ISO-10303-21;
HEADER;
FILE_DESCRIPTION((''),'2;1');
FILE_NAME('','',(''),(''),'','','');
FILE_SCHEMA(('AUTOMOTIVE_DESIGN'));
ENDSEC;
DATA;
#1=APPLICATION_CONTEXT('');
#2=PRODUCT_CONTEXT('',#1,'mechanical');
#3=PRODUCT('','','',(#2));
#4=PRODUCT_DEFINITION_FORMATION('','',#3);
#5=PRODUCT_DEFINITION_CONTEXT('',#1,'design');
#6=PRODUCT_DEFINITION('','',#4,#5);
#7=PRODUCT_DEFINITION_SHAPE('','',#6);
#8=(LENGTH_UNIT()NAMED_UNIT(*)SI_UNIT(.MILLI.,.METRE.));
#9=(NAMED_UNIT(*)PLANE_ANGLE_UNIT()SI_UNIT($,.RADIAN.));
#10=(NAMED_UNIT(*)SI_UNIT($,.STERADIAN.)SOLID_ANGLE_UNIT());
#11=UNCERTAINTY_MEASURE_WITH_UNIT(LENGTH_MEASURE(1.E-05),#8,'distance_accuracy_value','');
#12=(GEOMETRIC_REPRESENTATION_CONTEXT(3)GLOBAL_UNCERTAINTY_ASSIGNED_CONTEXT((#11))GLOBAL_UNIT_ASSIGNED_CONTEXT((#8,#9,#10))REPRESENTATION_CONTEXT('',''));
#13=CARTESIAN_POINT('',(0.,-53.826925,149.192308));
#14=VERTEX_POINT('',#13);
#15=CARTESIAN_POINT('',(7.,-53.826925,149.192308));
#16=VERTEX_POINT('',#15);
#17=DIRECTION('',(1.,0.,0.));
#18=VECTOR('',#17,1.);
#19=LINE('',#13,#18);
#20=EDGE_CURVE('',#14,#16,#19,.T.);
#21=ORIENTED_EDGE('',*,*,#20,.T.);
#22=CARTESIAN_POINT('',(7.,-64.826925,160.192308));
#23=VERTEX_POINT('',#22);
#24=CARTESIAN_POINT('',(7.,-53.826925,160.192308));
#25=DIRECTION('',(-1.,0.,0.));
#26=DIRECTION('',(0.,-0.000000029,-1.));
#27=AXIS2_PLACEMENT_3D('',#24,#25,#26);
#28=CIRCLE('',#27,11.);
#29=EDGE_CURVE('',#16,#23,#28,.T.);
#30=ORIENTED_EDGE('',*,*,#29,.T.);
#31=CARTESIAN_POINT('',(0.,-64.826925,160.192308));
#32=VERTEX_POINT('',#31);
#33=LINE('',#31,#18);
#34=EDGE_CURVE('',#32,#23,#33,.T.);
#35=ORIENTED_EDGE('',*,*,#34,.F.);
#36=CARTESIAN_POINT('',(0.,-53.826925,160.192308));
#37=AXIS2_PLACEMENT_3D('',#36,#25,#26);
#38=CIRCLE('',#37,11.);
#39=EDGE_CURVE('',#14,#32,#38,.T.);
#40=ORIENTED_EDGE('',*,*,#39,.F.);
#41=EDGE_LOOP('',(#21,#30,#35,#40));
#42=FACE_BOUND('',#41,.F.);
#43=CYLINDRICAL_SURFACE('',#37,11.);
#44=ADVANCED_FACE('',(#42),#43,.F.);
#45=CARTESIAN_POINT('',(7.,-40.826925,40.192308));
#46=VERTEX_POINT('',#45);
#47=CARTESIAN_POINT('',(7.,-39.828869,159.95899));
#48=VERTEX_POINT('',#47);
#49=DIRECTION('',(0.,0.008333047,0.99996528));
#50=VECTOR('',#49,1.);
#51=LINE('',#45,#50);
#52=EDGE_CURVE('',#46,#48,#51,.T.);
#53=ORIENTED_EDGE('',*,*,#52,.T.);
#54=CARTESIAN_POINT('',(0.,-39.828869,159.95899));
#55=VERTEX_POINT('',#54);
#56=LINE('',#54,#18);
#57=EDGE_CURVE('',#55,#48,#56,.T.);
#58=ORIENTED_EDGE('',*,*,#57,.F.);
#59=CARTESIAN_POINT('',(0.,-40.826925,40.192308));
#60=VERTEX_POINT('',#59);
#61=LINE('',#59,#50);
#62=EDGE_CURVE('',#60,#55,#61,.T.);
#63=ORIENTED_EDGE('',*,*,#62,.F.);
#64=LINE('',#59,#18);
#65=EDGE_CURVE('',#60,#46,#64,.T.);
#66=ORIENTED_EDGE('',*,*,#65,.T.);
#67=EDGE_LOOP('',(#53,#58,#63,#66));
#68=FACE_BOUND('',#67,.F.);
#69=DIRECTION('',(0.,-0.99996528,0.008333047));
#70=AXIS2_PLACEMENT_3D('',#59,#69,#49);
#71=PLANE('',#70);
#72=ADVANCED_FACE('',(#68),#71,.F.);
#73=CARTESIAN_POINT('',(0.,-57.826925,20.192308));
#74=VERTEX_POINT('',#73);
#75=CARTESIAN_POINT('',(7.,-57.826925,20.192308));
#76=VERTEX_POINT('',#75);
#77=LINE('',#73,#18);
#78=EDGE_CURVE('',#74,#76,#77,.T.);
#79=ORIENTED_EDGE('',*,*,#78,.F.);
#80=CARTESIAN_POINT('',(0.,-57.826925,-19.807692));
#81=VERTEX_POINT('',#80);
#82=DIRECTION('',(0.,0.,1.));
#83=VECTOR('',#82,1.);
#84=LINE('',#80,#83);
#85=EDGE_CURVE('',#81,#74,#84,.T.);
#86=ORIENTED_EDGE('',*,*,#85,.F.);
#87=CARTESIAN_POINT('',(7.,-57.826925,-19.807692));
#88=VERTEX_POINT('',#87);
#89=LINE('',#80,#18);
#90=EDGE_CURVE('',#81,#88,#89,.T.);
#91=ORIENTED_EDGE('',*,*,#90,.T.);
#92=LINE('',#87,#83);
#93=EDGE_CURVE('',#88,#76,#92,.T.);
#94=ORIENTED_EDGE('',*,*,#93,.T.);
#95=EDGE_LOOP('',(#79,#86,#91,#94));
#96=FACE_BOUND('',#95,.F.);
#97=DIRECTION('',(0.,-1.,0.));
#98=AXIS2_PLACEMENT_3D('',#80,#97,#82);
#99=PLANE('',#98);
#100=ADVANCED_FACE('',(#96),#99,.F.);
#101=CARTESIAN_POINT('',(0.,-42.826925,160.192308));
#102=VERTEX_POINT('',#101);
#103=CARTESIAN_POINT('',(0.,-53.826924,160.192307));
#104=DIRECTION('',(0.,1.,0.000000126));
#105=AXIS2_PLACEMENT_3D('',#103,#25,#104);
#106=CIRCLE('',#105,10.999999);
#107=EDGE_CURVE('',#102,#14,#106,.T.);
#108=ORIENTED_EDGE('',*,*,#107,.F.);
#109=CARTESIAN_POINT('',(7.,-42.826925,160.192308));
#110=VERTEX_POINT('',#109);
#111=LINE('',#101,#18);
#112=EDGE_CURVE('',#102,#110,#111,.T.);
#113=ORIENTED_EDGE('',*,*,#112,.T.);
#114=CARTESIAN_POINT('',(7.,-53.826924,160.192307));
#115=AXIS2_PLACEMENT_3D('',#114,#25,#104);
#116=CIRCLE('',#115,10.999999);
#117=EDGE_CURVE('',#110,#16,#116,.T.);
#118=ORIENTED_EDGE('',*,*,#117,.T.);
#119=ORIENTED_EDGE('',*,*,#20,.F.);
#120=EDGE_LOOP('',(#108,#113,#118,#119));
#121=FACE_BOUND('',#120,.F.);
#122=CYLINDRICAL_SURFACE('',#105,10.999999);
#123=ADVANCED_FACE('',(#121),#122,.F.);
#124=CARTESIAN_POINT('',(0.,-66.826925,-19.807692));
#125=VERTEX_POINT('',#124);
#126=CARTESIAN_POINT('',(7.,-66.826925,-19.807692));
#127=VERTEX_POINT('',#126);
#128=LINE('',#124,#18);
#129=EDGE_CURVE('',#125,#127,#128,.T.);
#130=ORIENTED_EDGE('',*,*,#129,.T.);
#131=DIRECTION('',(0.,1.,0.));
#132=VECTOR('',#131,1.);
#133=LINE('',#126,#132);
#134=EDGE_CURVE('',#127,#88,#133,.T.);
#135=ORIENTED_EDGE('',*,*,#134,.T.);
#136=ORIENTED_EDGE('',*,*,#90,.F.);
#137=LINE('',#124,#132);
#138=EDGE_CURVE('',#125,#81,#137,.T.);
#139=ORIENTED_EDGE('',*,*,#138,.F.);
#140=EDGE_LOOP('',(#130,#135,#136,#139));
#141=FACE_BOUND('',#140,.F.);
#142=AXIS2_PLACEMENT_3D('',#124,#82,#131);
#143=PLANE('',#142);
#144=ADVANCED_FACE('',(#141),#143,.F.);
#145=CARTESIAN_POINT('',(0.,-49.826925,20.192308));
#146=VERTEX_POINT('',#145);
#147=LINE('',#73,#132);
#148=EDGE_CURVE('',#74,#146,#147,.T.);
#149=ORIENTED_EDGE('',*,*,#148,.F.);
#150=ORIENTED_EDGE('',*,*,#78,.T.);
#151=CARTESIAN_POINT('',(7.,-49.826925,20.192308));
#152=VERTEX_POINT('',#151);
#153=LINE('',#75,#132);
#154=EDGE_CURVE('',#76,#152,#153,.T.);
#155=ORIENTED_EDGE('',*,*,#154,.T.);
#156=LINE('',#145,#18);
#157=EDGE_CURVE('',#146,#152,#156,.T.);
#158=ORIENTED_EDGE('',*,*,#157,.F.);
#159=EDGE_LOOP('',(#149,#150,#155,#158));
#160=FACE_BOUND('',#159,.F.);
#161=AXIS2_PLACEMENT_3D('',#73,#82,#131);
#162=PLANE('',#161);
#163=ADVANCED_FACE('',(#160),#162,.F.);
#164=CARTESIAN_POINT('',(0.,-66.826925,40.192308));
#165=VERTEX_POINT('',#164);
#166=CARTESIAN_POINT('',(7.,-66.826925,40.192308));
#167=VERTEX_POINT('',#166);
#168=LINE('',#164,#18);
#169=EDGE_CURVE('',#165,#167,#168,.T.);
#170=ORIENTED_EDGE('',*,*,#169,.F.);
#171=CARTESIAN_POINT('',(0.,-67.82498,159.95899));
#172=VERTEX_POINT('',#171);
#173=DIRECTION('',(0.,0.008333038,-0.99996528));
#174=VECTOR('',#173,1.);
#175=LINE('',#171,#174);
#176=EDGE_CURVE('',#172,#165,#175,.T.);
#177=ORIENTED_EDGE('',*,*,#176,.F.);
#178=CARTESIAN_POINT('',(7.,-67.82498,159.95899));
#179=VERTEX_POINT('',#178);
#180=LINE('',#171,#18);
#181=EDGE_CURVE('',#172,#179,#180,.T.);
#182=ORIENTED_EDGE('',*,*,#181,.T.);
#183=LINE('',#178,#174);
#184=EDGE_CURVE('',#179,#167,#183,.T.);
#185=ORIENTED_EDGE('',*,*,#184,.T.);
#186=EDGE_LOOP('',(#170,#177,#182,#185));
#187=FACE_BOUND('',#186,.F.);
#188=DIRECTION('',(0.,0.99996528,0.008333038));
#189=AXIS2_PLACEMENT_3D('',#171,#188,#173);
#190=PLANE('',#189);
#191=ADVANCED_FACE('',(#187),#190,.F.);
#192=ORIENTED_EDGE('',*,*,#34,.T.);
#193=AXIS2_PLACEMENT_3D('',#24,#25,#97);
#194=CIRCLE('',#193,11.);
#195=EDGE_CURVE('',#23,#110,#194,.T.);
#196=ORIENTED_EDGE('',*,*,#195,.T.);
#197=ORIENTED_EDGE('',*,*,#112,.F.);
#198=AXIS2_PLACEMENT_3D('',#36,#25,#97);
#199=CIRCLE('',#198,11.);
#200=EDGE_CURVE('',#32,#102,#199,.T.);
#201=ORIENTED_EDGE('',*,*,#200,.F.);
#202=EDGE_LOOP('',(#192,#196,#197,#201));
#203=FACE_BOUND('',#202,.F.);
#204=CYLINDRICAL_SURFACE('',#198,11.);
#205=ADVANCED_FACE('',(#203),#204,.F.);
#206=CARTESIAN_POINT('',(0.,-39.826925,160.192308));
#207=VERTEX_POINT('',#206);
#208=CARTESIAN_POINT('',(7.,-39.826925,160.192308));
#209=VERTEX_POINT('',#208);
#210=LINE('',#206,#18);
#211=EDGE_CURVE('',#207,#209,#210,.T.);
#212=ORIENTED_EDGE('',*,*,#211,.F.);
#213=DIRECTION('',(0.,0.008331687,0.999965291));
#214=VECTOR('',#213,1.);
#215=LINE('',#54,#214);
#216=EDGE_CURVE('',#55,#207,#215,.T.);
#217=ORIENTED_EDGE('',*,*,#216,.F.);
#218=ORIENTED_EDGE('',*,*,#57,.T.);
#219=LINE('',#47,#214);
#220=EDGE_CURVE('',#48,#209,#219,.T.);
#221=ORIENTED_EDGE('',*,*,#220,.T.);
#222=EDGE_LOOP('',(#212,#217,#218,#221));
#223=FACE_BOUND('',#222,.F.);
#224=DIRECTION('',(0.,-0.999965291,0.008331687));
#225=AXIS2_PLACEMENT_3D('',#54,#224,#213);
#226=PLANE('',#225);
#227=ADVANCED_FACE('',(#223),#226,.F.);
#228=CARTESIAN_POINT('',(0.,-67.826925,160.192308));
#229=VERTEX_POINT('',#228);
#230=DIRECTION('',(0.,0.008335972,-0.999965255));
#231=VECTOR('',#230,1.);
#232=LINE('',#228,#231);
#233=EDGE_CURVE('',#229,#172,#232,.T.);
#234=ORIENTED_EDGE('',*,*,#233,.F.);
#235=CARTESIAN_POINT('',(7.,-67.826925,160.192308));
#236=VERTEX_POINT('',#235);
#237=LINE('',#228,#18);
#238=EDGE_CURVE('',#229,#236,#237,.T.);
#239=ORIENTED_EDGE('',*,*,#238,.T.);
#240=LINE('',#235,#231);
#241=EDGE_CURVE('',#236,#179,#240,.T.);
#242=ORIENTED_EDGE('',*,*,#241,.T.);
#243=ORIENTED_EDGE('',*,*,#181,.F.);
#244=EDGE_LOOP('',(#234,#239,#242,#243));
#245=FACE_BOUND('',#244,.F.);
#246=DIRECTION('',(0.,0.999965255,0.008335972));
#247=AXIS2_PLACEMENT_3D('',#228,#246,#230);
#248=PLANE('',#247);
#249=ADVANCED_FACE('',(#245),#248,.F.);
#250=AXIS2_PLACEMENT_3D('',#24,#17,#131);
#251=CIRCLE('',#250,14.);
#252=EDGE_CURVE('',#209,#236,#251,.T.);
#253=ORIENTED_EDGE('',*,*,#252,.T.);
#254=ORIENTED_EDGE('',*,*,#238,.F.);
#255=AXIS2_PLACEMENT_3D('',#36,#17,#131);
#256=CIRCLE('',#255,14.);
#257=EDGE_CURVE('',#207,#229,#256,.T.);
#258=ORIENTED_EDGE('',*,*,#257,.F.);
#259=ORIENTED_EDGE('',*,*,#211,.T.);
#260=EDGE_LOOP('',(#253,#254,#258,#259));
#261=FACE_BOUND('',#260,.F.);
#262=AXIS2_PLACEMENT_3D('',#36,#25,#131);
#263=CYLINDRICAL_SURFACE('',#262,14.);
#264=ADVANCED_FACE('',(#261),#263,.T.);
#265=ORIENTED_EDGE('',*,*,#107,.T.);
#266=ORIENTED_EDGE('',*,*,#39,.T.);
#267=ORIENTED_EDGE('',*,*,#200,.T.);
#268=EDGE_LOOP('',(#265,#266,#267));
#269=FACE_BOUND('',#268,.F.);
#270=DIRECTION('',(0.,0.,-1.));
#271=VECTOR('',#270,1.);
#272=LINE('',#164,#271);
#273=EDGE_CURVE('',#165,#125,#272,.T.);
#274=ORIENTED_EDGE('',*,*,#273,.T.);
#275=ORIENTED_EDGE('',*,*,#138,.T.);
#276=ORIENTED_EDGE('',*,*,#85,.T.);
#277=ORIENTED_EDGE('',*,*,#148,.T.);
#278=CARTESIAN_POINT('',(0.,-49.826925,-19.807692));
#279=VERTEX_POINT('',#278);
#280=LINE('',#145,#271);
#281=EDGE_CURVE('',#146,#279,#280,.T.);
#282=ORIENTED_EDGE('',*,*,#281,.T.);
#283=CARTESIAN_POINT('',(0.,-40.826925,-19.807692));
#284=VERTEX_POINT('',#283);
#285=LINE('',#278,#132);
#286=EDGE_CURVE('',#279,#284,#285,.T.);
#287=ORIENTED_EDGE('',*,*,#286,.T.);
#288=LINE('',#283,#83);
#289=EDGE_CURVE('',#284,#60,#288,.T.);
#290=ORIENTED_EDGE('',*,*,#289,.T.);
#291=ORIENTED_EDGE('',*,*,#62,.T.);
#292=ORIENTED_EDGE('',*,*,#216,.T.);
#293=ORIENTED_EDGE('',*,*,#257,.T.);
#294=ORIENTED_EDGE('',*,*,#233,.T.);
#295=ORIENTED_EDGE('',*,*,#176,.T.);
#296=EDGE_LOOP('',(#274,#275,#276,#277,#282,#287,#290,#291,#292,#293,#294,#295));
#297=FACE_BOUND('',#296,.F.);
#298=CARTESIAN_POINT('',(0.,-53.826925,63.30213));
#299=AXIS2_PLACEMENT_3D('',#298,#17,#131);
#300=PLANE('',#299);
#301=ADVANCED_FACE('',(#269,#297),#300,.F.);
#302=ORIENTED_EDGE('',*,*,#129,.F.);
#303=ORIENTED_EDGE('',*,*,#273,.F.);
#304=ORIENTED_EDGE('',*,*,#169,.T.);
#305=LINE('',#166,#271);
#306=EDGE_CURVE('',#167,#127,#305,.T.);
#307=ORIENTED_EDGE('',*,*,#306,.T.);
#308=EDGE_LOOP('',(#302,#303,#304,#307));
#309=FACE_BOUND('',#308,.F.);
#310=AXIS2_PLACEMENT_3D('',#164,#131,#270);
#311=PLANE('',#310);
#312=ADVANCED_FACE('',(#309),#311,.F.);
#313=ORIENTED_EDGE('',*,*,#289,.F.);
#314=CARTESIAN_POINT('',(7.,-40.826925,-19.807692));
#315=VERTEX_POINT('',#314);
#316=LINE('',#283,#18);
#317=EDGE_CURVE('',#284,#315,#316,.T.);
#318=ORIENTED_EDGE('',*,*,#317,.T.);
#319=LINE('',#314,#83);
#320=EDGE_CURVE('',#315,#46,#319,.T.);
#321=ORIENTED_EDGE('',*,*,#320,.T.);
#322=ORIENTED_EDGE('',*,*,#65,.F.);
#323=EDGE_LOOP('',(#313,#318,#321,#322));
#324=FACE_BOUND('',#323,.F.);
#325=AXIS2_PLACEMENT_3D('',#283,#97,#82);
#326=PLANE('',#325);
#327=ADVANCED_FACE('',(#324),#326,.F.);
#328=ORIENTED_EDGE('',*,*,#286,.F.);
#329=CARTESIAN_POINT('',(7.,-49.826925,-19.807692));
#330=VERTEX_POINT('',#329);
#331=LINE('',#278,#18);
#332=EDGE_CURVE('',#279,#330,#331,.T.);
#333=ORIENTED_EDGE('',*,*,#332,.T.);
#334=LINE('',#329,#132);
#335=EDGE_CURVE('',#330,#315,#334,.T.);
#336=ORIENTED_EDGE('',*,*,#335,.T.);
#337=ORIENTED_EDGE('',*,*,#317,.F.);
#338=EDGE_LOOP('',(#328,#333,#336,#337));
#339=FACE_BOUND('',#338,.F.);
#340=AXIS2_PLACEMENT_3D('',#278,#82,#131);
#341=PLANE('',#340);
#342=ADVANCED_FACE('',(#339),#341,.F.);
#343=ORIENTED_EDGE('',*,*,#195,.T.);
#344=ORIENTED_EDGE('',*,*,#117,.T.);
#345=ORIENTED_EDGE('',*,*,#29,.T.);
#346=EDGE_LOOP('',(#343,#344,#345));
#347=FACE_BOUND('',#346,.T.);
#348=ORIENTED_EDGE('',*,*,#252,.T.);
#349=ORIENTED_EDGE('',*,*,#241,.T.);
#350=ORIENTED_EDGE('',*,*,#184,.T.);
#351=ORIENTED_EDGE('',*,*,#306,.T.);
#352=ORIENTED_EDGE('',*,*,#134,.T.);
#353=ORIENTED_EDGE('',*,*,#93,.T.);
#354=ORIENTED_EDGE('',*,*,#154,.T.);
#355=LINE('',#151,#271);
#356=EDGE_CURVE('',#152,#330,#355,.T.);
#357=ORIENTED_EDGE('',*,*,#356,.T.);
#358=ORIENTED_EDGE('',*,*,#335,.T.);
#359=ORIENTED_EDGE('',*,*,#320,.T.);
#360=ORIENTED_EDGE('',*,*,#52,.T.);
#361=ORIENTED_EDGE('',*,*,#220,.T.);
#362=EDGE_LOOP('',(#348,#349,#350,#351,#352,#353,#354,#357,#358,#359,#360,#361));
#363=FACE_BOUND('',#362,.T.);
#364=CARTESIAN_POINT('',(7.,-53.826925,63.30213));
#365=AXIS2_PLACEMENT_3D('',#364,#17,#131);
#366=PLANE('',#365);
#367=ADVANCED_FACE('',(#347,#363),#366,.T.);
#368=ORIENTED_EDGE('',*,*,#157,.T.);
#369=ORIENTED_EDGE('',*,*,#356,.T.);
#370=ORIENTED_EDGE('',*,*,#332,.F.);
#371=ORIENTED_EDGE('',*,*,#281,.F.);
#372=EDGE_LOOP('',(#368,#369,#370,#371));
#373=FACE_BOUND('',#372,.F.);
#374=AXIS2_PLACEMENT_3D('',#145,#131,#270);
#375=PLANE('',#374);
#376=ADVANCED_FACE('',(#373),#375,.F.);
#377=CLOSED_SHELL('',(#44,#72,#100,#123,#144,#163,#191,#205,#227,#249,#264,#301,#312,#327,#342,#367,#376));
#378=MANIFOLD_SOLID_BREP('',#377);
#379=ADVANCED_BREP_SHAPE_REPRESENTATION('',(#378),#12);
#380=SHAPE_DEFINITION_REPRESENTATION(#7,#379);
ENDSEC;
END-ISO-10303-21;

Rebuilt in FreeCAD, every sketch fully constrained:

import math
import FreeCAD as App
import Part
import Sketcher

V = App.Vector
Q = App.Units.Quantity

doc = App.newDocument("Part")
body = doc.addObject("PartDesign::Body", "Body")

sketch1 = body.newObject("Sketcher::SketchObject", "Sketch")
sketch1.AttachmentSupport = (doc.getObject("YZ_Plane"), [""])
sketch1.MapMode = "FlatFace"
sketch1.addGeometry(Part.LineSegment(V(-57.826925, -19.807692, 0), V(-57.826925, 20.192308, 0)), False)
sketch1.addGeometry(Part.LineSegment(V(-57.826925, 20.192308, 0), V(-49.826925, 20.192308, 0)), False)
sketch1.addGeometry(Part.LineSegment(V(-49.826925, 20.192308, 0), V(-49.826925, -19.807692, 0)), False)
sketch1.addGeometry(Part.LineSegment(V(-49.826925, -19.807692, 0), V(-40.826925, -19.807692, 0)), False)
sketch1.addGeometry(Part.LineSegment(V(-40.826925, -19.807692, 0), V(-40.826925, 40.192308, 0)), False)
sketch1.addGeometry(Part.LineSegment(V(-40.826925, 40.192308, 0), V(-39.828869, 159.95899, 0)), False)
sketch1.addGeometry(Part.LineSegment(V(-39.828869, 159.95899, 0), V(-39.826925, 160.192308, 0)), False)
sketch1.addGeometry(Part.ArcOfCircle(Part.Circle(V(-53.826925, 160.192308, 0), V(0, 0, 1), 14), math.radians(0), math.radians(180)), False)
sketch1.addGeometry(Part.LineSegment(V(-67.826925, 160.192308, 0), V(-67.82498, 159.95899, 0)), False)
sketch1.addGeometry(Part.LineSegment(V(-67.82498, 159.95899, 0), V(-66.826925, 40.192308, 0)), False)
sketch1.addGeometry(Part.LineSegment(V(-66.826925, 40.192308, 0), V(-66.826925, -19.807692, 0)), False)
sketch1.addGeometry(Part.LineSegment(V(-66.826925, -19.807692, 0), V(-57.826925, -19.807692, 0)), False)
sketch1.addGeometry(Part.ArcOfCircle(Part.Circle(V(-53.826925, 160.192308, 0), V(0, 0, 1), 11), math.radians(0), math.radians(180)), False)
sketch1.addGeometry(Part.ArcOfCircle(Part.Circle(V(-53.826924, 160.192307, 0), V(0, 0, 1), 10.999999), math.radians(-90.000007), math.radians(0.000007)), False)
sketch1.addGeometry(Part.ArcOfCircle(Part.Circle(V(-53.826925, 160.192308, 0), V(0, 0, 1), 11), math.radians(-179.999998), math.radians(-90.000002)), False)
sketch1.addConstraint(Sketcher.Constraint("Coincident", 0, 2, 1, 1))
sketch1.addConstraint(Sketcher.Constraint("Coincident", 1, 2, 2, 1))
sketch1.addConstraint(Sketcher.Constraint("Coincident", 2, 2, 3, 1))
sketch1.addConstraint(Sketcher.Constraint("Coincident", 3, 2, 4, 1))
sketch1.addConstraint(Sketcher.Constraint("Coincident", 4, 2, 5, 1))
sketch1.addConstraint(Sketcher.Constraint("Coincident", 5, 2, 6, 1))
sketch1.addConstraint(Sketcher.Constraint("Coincident", 6, 2, 7, 1))
sketch1.addConstraint(Sketcher.Constraint("Coincident", 7, 2, 8, 1))
sketch1.addConstraint(Sketcher.Constraint("Coincident", 8, 2, 9, 1))
sketch1.addConstraint(Sketcher.Constraint("Coincident", 9, 2, 10, 1))
sketch1.addConstraint(Sketcher.Constraint("Coincident", 10, 2, 11, 1))
sketch1.addConstraint(Sketcher.Constraint("Coincident", 11, 2, 0, 1))
sketch1.addConstraint(Sketcher.Constraint("Tangent", 12, 1, 13, 2))
sketch1.addConstraint(Sketcher.Constraint("Tangent", 13, 1, 14, 2))
sketch1.addConstraint(Sketcher.Constraint("Tangent", 14, 1, 12, 2))
sketch1.addConstraint(Sketcher.Constraint("Vertical", 0))
sketch1.addConstraint(Sketcher.Constraint("Horizontal", 1))
sketch1.addConstraint(Sketcher.Constraint("Vertical", 2))
sketch1.addConstraint(Sketcher.Constraint("Horizontal", 3))
sketch1.addConstraint(Sketcher.Constraint("Vertical", 4))
sketch1.addConstraint(Sketcher.Constraint("Vertical", 10))
sketch1.addConstraint(Sketcher.Constraint("Horizontal", 11))
sketch1.addConstraint(Sketcher.Constraint("Coincident", 12, 3, 7, 3))
sketch1.addConstraint(Sketcher.Constraint("Parallel", 5, 6))
sketch1.addConstraint(Sketcher.Constraint("Horizontal", 14, 3, 6, 2))
sketch1.addConstraint(Sketcher.Constraint("Horizontal", 6, 2, 7, 2))
sketch1.addConstraint(Sketcher.Constraint("Horizontal", 5, 2, 8, 2))
sketch1.addConstraint(Sketcher.Constraint("Horizontal", 4, 2, 9, 2))
sketch1.addConstraint(Sketcher.Constraint("Horizontal", 3, 2, 10, 2))
sketch1.addConstraint(Sketcher.Constraint("Horizontal", 7, 2, 12, 1))
sketch1.addConstraint(Sketcher.Constraint("Horizontal", 12, 1, 14, 1))
sketch1.addConstraint(Sketcher.Constraint("Vertical", 14, 3, 13, 1))
sketch1.addConstraint(Sketcher.Constraint("Equal", 3, 11))
sketch1.addConstraint(Sketcher.Constraint("Equal", 6, 8))
sketch1.addConstraint(Sketcher.Constraint("Equal", 5, 9))
sketch1.addConstraint(Sketcher.Constraint("Radius", 7, Q("14 mm")))
sketch1.addConstraint(Sketcher.Constraint("Radius", 12, Q("11 mm")))
sketch1.addConstraint(Sketcher.Constraint("DistanceX", 1, 1, 1, 2, Q("8 mm")))
sketch1.addConstraint(Sketcher.Constraint("DistanceX", 3, 1, 3, 2, Q("9 mm")))
sketch1.addConstraint(Sketcher.Constraint("DistanceY", 0, 1, 0, 2, Q("40 mm")))
sketch1.addConstraint(Sketcher.Constraint("DistanceY", 4, 1, 4, 2, Q("60 mm")))
sketch1.addConstraint(Sketcher.Constraint("DistanceY", 0, 2, 13, 3, Q("139.999999 mm")))
sketch1.addConstraint(Sketcher.Constraint("Distance", 5, Q("119.77084 mm")))
sketch1.addConstraint(Sketcher.Constraint("DistanceY", -1, 1, 7, 3, Q("160.192308 mm")))
sketch1.addConstraint(Sketcher.Constraint("DistanceX", 5, 2, -1, 1, Q("39.828869 mm")))
pad1 = body.newObject("PartDesign::Pad", "Pad")
pad1.Profile = sketch1
pad1.Length = 7

doc.recompute()
